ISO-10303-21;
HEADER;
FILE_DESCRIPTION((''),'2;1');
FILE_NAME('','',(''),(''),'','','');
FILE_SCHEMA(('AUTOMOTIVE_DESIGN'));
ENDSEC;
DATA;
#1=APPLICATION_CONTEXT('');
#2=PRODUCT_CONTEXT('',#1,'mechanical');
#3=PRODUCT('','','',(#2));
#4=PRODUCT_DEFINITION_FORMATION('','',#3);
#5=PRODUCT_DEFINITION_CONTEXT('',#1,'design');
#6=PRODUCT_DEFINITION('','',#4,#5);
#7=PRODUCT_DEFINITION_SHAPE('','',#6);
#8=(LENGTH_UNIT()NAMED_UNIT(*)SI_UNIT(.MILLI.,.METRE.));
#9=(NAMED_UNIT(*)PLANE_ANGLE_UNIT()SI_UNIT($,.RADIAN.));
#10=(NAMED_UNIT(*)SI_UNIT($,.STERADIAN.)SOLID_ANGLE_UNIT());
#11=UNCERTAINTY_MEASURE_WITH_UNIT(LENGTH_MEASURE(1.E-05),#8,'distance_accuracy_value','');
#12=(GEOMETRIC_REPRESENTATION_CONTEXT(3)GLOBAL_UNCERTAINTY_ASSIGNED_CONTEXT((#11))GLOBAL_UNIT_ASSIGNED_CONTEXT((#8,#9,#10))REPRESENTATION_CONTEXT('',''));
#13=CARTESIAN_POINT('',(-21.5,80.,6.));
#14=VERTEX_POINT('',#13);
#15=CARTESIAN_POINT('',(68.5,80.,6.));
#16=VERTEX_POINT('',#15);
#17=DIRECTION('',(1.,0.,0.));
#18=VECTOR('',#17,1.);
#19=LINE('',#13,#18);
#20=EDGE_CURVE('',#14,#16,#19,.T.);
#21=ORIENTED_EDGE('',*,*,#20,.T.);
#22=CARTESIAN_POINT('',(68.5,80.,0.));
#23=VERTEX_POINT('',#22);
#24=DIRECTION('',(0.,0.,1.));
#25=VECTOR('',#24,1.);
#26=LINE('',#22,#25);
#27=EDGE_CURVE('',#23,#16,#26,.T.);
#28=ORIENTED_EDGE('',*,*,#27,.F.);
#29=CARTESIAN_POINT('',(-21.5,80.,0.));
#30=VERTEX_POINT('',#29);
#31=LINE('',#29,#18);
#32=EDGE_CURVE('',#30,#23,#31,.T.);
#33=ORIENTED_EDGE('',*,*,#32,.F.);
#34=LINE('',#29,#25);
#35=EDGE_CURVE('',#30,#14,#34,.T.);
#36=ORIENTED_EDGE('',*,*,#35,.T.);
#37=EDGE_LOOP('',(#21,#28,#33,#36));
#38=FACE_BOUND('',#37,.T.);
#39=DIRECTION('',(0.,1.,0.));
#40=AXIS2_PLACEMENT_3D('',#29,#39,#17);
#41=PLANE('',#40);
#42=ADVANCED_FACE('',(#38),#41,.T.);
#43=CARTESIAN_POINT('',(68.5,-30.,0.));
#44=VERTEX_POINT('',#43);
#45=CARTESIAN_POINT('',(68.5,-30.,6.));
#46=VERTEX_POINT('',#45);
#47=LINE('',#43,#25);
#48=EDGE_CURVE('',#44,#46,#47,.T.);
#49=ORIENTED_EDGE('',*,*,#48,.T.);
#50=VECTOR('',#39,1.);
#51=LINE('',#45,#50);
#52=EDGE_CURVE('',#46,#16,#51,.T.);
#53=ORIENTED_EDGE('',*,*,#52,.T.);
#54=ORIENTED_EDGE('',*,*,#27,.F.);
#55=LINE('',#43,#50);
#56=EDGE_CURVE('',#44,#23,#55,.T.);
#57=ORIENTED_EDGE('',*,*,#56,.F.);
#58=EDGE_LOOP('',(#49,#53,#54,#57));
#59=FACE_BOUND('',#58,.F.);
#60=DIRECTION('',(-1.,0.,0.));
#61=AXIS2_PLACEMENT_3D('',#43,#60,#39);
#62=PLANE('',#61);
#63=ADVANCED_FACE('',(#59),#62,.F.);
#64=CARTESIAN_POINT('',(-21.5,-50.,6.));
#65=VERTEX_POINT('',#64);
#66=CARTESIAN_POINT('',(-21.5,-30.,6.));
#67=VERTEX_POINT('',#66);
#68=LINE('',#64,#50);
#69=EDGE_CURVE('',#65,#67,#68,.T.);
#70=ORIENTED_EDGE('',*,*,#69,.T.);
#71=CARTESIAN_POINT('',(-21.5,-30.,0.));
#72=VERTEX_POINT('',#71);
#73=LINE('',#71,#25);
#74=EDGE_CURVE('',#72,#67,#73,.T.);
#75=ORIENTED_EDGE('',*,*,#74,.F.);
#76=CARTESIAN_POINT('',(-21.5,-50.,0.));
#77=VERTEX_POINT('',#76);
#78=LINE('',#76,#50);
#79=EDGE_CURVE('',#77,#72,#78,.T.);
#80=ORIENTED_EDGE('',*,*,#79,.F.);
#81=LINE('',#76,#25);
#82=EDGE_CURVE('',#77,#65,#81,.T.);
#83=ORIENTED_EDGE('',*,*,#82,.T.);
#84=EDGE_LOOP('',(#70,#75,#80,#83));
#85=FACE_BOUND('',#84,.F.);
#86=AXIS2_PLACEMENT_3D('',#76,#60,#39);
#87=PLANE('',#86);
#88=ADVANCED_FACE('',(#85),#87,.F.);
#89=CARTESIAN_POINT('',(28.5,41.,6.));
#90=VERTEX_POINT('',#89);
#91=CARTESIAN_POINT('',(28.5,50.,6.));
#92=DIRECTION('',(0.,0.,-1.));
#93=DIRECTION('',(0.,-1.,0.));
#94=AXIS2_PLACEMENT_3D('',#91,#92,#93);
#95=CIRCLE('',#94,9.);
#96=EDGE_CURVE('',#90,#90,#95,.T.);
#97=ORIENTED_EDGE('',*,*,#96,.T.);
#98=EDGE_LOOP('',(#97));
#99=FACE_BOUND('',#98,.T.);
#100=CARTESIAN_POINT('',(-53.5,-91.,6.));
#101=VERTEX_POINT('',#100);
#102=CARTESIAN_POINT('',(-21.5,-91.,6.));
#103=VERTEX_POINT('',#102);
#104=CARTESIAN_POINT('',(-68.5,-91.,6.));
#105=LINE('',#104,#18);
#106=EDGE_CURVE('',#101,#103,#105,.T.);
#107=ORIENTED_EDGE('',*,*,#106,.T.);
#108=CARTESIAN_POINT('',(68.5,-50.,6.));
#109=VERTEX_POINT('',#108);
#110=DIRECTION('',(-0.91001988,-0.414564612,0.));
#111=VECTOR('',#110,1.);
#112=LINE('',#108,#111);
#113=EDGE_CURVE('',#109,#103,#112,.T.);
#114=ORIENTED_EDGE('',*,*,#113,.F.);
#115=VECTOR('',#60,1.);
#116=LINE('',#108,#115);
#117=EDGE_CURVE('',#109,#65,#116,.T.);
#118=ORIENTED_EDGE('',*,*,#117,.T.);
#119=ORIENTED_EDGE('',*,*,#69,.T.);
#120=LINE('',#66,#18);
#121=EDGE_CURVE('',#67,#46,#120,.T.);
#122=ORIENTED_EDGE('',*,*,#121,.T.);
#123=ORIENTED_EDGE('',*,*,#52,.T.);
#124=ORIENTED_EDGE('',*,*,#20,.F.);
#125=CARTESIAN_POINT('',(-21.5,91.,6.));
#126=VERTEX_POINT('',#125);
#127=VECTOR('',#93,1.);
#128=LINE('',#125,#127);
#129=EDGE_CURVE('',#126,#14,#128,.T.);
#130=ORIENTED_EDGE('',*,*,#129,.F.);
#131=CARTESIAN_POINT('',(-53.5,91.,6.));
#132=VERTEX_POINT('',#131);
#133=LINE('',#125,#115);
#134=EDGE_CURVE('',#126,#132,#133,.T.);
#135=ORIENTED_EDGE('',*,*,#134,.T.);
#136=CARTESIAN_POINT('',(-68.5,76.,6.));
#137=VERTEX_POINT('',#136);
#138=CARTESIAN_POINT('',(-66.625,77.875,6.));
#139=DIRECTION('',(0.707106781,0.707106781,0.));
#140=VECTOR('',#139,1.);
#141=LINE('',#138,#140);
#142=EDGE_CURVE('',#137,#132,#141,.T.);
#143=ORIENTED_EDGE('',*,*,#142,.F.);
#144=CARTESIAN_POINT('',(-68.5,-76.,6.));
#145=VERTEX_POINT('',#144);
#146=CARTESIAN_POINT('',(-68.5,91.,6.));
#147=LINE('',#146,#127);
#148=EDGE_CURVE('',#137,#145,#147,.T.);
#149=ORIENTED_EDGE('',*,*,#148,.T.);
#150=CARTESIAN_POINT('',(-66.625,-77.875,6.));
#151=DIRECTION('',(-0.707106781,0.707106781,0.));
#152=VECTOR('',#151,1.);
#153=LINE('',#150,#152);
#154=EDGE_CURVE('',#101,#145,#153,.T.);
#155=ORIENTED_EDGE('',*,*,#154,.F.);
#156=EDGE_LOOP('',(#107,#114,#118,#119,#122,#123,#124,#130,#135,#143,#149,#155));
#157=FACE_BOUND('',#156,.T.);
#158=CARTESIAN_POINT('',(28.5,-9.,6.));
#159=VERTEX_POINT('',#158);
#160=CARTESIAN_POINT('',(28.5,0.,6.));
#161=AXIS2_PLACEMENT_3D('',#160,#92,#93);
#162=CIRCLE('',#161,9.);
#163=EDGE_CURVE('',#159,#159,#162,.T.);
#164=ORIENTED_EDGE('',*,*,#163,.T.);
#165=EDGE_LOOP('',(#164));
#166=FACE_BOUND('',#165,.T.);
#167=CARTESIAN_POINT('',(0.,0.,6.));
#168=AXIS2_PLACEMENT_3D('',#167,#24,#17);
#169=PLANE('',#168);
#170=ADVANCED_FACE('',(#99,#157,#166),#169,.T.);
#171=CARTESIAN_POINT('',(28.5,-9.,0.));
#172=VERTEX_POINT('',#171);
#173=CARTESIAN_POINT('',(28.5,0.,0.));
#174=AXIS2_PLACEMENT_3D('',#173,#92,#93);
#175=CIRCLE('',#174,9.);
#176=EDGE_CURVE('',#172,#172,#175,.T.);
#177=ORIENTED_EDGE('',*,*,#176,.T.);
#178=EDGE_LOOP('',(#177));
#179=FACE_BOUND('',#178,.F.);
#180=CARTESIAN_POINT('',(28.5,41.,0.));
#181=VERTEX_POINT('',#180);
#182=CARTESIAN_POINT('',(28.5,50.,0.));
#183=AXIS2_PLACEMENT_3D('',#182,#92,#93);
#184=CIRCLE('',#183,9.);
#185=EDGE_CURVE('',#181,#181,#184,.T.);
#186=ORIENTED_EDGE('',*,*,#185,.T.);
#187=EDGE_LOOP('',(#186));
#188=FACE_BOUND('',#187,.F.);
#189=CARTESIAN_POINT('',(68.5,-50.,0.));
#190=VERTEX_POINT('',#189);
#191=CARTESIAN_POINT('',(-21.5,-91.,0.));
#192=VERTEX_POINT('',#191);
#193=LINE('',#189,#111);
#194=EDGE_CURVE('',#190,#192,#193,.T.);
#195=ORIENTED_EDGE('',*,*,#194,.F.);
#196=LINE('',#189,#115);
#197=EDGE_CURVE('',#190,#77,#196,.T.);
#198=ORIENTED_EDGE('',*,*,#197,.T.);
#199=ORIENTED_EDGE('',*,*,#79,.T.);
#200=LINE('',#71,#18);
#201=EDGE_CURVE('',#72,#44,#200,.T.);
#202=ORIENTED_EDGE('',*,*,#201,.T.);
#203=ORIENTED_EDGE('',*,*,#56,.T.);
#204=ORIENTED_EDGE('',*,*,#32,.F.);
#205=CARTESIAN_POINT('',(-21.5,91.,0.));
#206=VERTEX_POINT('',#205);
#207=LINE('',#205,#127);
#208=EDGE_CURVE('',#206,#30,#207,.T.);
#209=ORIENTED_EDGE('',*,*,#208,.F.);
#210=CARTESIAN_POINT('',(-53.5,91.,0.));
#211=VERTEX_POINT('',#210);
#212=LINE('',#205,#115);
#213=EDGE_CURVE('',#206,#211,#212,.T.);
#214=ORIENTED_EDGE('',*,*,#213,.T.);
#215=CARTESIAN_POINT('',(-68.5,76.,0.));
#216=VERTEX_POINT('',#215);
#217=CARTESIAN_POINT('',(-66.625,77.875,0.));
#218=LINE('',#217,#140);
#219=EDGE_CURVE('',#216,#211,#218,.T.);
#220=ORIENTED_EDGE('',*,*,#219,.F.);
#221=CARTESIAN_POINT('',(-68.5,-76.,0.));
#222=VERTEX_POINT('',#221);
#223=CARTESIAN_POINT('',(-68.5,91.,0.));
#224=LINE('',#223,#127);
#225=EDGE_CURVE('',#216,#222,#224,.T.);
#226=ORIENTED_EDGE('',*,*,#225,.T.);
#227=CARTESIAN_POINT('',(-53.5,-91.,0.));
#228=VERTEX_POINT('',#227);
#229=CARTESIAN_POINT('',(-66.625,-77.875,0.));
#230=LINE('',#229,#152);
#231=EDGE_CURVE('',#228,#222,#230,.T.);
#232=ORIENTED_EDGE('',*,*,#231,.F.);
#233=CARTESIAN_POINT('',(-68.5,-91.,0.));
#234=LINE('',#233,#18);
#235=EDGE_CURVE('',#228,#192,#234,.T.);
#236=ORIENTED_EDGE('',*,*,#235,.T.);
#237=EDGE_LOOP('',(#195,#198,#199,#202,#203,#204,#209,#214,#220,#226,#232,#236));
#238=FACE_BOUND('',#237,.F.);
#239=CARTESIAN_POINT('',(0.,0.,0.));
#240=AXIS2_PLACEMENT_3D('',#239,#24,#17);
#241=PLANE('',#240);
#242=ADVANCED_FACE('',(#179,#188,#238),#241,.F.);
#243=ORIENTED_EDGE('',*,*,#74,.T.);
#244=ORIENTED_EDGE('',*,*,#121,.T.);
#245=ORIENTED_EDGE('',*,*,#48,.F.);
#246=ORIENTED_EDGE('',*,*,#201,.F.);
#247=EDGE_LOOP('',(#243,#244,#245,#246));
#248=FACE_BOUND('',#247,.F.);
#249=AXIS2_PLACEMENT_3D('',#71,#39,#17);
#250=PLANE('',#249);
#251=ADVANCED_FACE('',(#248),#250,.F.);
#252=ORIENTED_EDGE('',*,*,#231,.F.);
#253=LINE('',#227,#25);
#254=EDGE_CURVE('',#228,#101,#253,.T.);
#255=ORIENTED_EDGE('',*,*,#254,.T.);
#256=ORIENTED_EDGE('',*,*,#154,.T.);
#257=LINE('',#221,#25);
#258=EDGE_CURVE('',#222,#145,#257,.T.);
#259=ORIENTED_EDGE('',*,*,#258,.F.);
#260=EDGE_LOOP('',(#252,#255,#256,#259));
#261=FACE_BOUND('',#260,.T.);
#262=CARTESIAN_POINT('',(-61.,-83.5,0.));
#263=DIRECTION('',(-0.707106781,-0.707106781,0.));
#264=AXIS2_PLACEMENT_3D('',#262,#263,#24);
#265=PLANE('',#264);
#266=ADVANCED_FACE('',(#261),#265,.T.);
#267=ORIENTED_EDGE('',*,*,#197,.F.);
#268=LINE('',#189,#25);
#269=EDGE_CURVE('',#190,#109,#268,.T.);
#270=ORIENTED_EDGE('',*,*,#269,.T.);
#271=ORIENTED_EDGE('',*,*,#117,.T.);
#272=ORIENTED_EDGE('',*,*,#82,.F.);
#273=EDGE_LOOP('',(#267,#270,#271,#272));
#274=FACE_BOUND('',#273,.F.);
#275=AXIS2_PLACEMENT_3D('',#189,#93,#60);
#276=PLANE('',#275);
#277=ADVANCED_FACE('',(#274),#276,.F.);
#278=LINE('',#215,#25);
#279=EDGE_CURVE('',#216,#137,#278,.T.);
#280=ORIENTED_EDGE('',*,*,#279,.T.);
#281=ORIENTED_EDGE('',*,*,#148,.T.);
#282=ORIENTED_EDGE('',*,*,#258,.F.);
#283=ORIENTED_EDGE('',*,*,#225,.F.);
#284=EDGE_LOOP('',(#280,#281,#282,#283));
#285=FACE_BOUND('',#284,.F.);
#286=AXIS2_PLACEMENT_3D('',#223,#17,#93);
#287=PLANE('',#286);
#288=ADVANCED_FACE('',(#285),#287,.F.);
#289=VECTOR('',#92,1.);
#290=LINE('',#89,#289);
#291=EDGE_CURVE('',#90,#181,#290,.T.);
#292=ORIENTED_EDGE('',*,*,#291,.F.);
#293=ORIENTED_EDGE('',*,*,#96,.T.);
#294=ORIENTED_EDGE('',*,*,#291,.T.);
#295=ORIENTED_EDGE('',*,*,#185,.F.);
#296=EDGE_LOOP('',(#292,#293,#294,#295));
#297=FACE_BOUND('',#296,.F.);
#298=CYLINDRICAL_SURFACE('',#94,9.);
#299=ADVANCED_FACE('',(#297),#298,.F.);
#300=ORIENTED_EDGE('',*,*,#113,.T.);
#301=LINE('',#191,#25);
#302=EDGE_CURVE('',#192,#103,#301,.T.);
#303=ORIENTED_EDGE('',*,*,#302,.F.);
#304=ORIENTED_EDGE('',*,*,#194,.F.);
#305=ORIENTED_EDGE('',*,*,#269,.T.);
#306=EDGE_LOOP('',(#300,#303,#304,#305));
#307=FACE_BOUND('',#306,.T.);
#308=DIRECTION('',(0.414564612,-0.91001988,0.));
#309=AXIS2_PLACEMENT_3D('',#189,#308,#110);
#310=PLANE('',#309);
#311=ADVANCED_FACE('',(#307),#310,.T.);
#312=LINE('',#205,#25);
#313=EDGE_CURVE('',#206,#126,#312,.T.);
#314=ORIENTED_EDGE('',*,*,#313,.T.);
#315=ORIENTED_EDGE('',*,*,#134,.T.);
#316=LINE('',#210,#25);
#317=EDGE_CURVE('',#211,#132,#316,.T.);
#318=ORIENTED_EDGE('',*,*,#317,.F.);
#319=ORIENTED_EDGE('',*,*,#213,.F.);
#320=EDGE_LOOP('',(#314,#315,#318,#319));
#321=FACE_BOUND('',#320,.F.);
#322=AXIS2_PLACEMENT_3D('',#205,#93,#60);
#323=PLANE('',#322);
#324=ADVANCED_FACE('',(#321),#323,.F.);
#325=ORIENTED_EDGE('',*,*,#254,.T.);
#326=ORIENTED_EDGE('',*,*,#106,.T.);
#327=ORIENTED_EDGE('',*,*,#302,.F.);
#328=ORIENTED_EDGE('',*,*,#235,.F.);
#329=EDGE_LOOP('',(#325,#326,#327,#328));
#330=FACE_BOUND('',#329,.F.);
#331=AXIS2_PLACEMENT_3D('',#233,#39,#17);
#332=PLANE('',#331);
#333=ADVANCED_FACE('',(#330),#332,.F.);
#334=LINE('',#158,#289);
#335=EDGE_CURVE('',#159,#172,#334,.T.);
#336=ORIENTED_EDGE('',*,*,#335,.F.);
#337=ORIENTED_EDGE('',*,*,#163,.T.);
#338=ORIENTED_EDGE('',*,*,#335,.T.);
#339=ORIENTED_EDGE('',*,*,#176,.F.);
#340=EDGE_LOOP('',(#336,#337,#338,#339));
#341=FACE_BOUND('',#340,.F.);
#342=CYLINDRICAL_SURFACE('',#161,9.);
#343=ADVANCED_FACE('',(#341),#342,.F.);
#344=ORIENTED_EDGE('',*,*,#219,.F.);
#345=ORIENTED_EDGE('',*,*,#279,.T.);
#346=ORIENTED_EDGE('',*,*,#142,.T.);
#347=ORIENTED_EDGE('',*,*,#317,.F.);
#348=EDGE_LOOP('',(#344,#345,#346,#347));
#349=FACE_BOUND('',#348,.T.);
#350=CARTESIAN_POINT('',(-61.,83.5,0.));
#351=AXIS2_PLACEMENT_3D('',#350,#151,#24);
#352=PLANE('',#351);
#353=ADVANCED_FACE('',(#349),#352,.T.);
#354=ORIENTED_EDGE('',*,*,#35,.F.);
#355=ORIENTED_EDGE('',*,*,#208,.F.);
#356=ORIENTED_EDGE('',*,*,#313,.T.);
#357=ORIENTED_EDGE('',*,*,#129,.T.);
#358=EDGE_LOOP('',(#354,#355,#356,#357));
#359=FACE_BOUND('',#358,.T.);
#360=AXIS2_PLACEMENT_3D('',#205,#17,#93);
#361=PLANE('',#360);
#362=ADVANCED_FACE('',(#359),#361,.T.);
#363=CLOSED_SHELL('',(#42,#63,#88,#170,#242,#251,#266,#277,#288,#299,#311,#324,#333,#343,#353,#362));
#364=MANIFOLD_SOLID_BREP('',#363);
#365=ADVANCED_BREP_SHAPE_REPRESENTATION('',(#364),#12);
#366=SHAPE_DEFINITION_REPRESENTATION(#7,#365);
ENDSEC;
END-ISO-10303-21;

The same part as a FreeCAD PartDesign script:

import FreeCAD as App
import Part
import Sketcher


def edges_at(feature, points):
    """Names of the edges that pass closest to the given points."""
    edges = feature.Shape.Edges
    near = lambda p: min(range(len(edges)), key=lambda i: edges[i].distToShape(Part.Vertex(*p))[0])
    return sorted({f"Edge{near(p) + 1}" for p in points})

doc = App.newDocument("Part")
body = doc.addObject("PartDesign::Body", "Body")

# Sketch on XY plane
sketch1 = body.newObject("Sketcher::SketchObject", "Sketch")
sketch1.AttachmentSupport = (doc.getObject("XY_Plane"), [""])
sketch1.MapMode = "FlatFace"
sketch1.addGeometry(Part.LineSegment(App.Vector(-21.5, 80, 0), App.Vector(-21.5, 91, 0)), False)
sketch1.addGeometry(Part.LineSegment(App.Vector(-21.5, 91, 0), App.Vector(-68.5, 91, 0)), False)
sketch1.addGeometry(Part.LineSegment(App.Vector(-68.5, 91, 0), App.Vector(-68.5, -91, 0)), False)
sketch1.addGeometry(Part.LineSegment(App.Vector(-68.5, -91, 0), App.Vector(-21.5, -91, 0)), False)
sketch1.addGeometry(Part.LineSegment(App.Vector(-21.5, -91, 0), App.Vector(68.5, -50, 0)), False)
sketch1.addGeometry(Part.LineSegment(App.Vector(68.5, -50, 0), App.Vector(-21.5, -50, 0)), False)
sketch1.addGeometry(Part.LineSegment(App.Vector(-21.5, -50, 0), App.Vector(-21.5, -30, 0)), False)
sketch1.addGeometry(Part.LineSegment(App.Vector(-21.5, -30, 0), App.Vector(68.5, -30, 0)), False)
sketch1.addGeometry(Part.LineSegment(App.Vector(68.5, -30, 0), App.Vector(68.5, 80, 0)), False)
sketch1.addGeometry(Part.LineSegment(App.Vector(68.5, 80, 0), App.Vector(-21.5, 80, 0)), False)
sketch1.addConstraint(Sketcher.Constraint("Coincident", 0, 2, 1, 1))
sketch1.addConstraint(Sketcher.Constraint("Coincident", 1, 2, 2, 1))
sketch1.addConstraint(Sketcher.Constraint("Coincident", 2, 2, 3, 1))
sketch1.addConstraint(Sketcher.Constraint("Coincident", 3, 2, 4, 1))
sketch1.addConstraint(Sketcher.Constraint("Coincident", 4, 2, 5, 1))
sketch1.addConstraint(Sketcher.Constraint("Coincident", 5, 2, 6, 1))
sketch1.addConstraint(Sketcher.Constraint("Coincident", 6, 2, 7, 1))
sketch1.addConstraint(Sketcher.Constraint("Coincident", 7, 2, 8, 1))
sketch1.addConstraint(Sketcher.Constraint("Coincident", 8, 2, 9, 1))
sketch1.addConstraint(Sketcher.Constraint("Coincident", 9, 2, 0, 1))
sketch1.addConstraint(Sketcher.Constraint("Vertical", 0))
sketch1.addConstraint(Sketcher.Constraint("Horizontal", 1))
sketch1.addConstraint(Sketcher.Constraint("Vertical", 2))
sketch1.addConstraint(Sketcher.Constraint("Horizontal", 3))
sketch1.addConstraint(Sketcher.Constraint("Horizontal", 5))
sketch1.addConstraint(Sketcher.Constraint("Vertical", 6))
sketch1.addConstraint(Sketcher.Constraint("Horizontal", 7))
sketch1.addConstraint(Sketcher.Constraint("Vertical", 8))
sketch1.addConstraint(Sketcher.Constraint("Horizontal", 9))
sketch1.addConstraint(Sketcher.Constraint("Symmetric", 0, 2, 3, 2, -1))
sketch1.addConstraint(Sketcher.Constraint("Vertical", 3, 2, 5, 2))
sketch1.addConstraint(Sketcher.Constraint("Vertical", 4, 2, 7, 2))
sketch1.addConstraint(Sketcher.Constraint("DistanceX", 1, 2, 1, 1, 47.0))
sketch1.addConstraint(Sketcher.Constraint("DistanceX", 5, 2, 5, 1, 90.0))
sketch1.addConstraint(Sketcher.Constraint("DistanceY", 2, 2, 2, 1, 182.0))
sketch1.addConstraint(Sketcher.Constraint("DistanceY", 6, 1, 6, 2, 20.0))
sketch1.addConstraint(Sketcher.Constraint("DistanceY", 0, 1, 0, 2, 11.0))
sketch1.addConstraint(Sketcher.Constraint("DistanceY", 8, 1, 8, 2, 110.0))
sketch1.addConstraint(Sketcher.Constraint("DistanceX", 0, 2, -1, 1, 21.5))
pad1 = body.newObject("PartDesign::Pad", "Pad")
pad1.Profile = sketch1
pad1.Length = 6
doc.recompute()

chamfer = body.newObject("PartDesign::Chamfer", "Chamfer")
chamfer.Base = (pad1, edges_at(pad1, [(-68.5, -91, 3), (-68.5, 91, 3)]))
chamfer.Size = 15

# Sketch on XY plane
sketch2 = body.newObject("Sketcher::SketchObject", "Sketch001")
sketch2.AttachmentSupport = (doc.getObject("XY_Plane"), [""])
sketch2.MapMode = "FlatFace"
sketch2.AttachmentOffset = App.Placement(App.Vector(0, 0, 6), App.Rotation())
sketch2.addGeometry(Part.Circle(App.Vector(28.5, 0, 0), App.Vector(0, 0, 1), 9), False)
sketch2.addGeometry(Part.Circle(App.Vector(28.5, 50, 0), App.Vector(0, 0, 1), 9), False)
sketch2.addConstraint(Sketcher.Constraint("Equal", 0, 1))
sketch2.addConstraint(Sketcher.Constraint("PointOnObject", 0, 3, -1))
sketch2.addConstraint(Sketcher.Constraint("Vertical", 0, 3, 1, 3))
sketch2.addConstraint(Sketcher.Constraint("Diameter", 0, 18.0))
sketch2.addConstraint(Sketcher.Constraint("DistanceY", -1, 1, 1, 3, 50.0))
sketch2.addConstraint(Sketcher.Constraint("DistanceX", -1, 1, 0, 3, 28.5))
doc.recompute()
hole = body.newObject("PartDesign::Hole", "Hole")
hole.Profile = sketch2
hole.ThreadType = "None"
hole.Diameter = 18
hole.DepthType = "ThroughAll"

doc.recompute()
